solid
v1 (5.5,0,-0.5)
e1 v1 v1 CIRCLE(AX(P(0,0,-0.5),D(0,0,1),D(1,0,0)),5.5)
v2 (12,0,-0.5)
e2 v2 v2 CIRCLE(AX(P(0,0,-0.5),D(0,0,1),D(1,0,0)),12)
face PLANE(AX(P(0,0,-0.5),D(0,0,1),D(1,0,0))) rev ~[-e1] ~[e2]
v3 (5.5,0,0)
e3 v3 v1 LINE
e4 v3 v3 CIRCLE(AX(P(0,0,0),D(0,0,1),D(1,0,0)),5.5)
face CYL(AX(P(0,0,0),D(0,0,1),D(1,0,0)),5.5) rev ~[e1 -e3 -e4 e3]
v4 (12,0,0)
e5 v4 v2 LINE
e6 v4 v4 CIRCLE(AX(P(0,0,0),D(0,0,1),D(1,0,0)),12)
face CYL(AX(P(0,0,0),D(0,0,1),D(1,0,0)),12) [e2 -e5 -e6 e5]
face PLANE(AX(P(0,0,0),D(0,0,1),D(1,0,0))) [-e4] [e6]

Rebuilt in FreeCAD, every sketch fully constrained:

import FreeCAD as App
import Part
import Sketcher
from FreeCAD import Vector
Q = App.Units.Quantity

doc = App.newDocument("Part")
body = doc.addObject("PartDesign::Body", "Body")

sketch1 = doc.addObject("Sketcher::SketchObject", "Sketch")
body.addObject(sketch1)
sketch1.AttachmentSupport = (doc.XY_Plane, [""])
sketch1.MapMode = "FlatFace"
sketch1.addGeometry(Part.Circle(Vector(0, 0, 0), Vector(0, 0, 1), 12), False)
sketch1.addGeometry(Part.Circle(Vector(0, 0, 0), Vector(0, 0, 1), 5.5), False)
sketch1.addConstraint(Sketcher.Constraint("Coincident", 0, 3, -1, 1))
sketch1.addConstraint(Sketcher.Constraint("Coincident", 1, 3, -1, 1))
sketch1.addConstraint(Sketcher.Constraint("Diameter", 0, Q("24 mm")))
sketch1.addConstraint(Sketcher.Constraint("Diameter", 1, Q("11 mm")))
pad1 = doc.addObject("PartDesign::Pad", "Pad")
body.addObject(pad1)
pad1.Profile = sketch1
pad1.Length = 0.5
pad1.Reversed = True

doc.recompute()
